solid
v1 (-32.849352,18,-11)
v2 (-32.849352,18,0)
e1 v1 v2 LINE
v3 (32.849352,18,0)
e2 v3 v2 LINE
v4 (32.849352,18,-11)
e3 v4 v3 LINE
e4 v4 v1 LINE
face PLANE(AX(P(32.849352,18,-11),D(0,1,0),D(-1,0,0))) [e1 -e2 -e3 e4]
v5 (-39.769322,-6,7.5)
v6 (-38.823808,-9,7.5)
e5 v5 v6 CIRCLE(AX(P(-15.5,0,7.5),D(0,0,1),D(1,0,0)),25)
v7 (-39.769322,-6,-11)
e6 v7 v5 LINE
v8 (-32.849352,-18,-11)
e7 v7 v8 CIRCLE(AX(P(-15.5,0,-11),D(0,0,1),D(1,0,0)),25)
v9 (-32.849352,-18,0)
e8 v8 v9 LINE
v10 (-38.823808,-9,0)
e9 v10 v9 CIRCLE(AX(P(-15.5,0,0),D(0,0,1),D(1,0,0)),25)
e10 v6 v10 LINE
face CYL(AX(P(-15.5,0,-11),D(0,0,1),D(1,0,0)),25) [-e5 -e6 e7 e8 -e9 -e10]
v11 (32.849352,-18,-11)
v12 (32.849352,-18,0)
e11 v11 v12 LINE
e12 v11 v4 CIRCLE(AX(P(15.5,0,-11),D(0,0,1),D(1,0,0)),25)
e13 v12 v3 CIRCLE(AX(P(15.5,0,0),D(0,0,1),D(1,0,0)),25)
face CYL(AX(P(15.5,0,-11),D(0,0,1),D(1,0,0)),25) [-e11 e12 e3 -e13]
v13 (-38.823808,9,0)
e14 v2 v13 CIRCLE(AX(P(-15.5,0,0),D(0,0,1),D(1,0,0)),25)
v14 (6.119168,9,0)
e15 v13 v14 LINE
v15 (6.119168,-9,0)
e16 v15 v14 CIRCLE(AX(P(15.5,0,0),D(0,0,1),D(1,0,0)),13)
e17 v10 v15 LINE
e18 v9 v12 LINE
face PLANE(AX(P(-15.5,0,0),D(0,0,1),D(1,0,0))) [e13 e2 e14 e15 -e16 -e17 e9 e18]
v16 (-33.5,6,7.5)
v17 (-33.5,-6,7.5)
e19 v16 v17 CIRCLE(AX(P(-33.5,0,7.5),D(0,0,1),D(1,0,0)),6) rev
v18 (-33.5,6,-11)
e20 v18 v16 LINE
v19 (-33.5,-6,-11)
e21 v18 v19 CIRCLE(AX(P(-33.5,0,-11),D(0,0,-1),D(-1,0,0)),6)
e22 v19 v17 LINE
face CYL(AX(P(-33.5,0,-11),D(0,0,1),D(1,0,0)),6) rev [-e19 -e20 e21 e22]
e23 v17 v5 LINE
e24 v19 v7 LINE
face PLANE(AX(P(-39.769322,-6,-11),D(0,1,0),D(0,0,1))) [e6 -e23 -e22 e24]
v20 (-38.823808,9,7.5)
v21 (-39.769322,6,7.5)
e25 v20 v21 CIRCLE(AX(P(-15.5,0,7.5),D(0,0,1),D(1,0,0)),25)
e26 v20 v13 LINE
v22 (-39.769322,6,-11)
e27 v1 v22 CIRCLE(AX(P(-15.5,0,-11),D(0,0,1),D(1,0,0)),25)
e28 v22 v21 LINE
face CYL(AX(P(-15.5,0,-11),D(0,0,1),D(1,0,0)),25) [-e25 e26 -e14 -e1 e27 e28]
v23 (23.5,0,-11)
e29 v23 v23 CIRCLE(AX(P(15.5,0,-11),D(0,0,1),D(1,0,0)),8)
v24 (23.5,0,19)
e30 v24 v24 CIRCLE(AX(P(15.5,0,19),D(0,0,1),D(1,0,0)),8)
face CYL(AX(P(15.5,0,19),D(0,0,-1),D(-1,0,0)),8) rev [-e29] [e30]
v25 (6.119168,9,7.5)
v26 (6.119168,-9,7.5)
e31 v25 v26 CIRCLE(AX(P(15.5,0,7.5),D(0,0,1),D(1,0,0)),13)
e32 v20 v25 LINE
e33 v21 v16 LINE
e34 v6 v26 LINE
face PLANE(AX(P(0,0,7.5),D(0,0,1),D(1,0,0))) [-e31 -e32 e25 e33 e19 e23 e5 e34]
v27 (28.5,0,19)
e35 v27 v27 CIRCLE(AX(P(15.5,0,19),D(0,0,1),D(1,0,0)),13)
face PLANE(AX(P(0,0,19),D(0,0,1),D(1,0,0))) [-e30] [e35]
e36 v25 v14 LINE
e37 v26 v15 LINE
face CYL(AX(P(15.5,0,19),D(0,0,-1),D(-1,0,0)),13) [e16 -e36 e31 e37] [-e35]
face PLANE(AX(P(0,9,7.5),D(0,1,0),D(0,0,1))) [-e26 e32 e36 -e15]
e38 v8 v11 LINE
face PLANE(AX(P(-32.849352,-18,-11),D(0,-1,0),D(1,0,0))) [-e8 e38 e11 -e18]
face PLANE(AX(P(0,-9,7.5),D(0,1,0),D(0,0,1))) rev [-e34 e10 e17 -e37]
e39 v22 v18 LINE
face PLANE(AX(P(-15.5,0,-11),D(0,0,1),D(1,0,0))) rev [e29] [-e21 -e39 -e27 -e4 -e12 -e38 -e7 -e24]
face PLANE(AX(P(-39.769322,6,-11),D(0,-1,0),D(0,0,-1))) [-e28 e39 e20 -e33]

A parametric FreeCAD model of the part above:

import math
import FreeCAD as App
import Part
import Sketcher

V = App.Vector

doc = App.newDocument("Part")
body = doc.addObject("PartDesign::Body", "Body")

sketch1 = doc.addObject("Sketcher::SketchObject", "Sketch")
body.addObject(sketch1)
sketch1.AttachmentSupport = (doc.XY_Plane, [""])
sketch1.MapMode = "FlatFace"
sketch1.addGeometry(Part.LineSegment(V(-33, -18, 0), V(33, -18, 0)), False)
sketch1.addGeometry(Part.ArcOfCircle(Part.Circle(V(16, 0, 0), V(0, 0, 1), 25), math.radians(-46), math.radians(46)), False)
sketch1.addGeometry(Part.LineSegment(V(33, 18, 0), V(-33, 18, 0)), False)
sketch1.addGeometry(Part.ArcOfCircle(Part.Circle(V(-15, 0, 0), V(0, 0, 1), 25), math.radians(134), math.radians(166)), False)
sketch1.addGeometry(Part.LineSegment(V(-40, 6, 0), V(-34, 6, 0)), False)
sketch1.addGeometry(Part.ArcOfCircle(Part.Circle(V(-34, 0, 0), V(0, 0, 1), 6), math.radians(-90), math.radians(90)), False)
sketch1.addGeometry(Part.LineSegment(V(-34, -6, 0), V(-40, -6, 0)), False)
sketch1.addGeometry(Part.ArcOfCircle(Part.Circle(V(-15, 0, 0), V(0, 0, 1), 25), math.radians(-166), math.radians(-134)), False)
sketch1.addConstraint(Sketcher.Constraint("Coincident", 0, 2, 1, 1))
sketch1.addConstraint(Sketcher.Constraint("Coincident", 1, 2, 2, 1))
sketch1.addConstraint(Sketcher.Constraint("Coincident", 2, 2, 3, 1))
sketch1.addConstraint(Sketcher.Constraint("Coincident", 3, 2, 4, 1))
sketch1.addConstraint(Sketcher.Constraint("Tangent", 4, 2, 5, 2))
sketch1.addConstraint(Sketcher.Constraint("Tangent", 5, 1, 6, 1))
sketch1.addConstraint(Sketcher.Constraint("Coincident", 6, 2, 7, 1))
sketch1.addConstraint(Sketcher.Constraint("Coincident", 7, 2, 0, 1))
sketch1.addConstraint(Sketcher.Constraint("Horizontal", 0))
sketch1.addConstraint(Sketcher.Constraint("Horizontal", 2))
sketch1.addConstraint(Sketcher.Constraint("Horizontal", 4))
sketch1.addConstraint(Sketcher.Constraint("Horizontal", 6))
sketch1.addConstraint(Sketcher.Constraint("Coincident", 7, 3, 3, 3))
sketch1.addConstraint(Sketcher.Constraint("Equal", 1, 3))
sketch1.addConstraint(Sketcher.Constraint("Equal", 3, 7))
sketch1.addConstraint(Sketcher.Constraint("Symmetric", 1, 3, 3, 3, -1, 1))
sketch1.addConstraint(Sketcher.Constraint("Symmetric", 0, 2, 1, 2, -1))
sketch1.addConstraint(Sketcher.Constraint("PointOnObject", 5, 3, -1))
sketch1.addConstraint(Sketcher.Constraint("Radius", 1, 25.0))
sketch1.addConstraint(Sketcher.Constraint("Radius", 5, 6.0))
sketch1.addConstraint(Sketcher.Constraint("DistanceY", 0, 2, -1, 1, 18.0))
sketch1.addConstraint(Sketcher.Constraint("DistanceX", 3, 3, 1, 3, 31.0))
sketch1.addConstraint(Sketcher.Constraint("DistanceX", 5, 3, 3, 3, 18.0))
pad1 = doc.addObject("PartDesign::Pad", "Pad")
body.addObject(pad1)
pad1.Profile = sketch1
pad1.Length = 11
pad1.Reversed = True

sketch2 = doc.addObject("Sketcher::SketchObject", "Sketch001")
body.addObject(sketch2)
sketch2.AttachmentSupport = (doc.XY_Plane, [""])
sketch2.MapMode = "FlatFace"
sketch2.addGeometry(Part.ArcOfCircle(Part.Circle(V(-15.5, 0, 0), V(0, 0, 1), 25), math.radians(-166.11), math.radians(-158.9)), False)
sketch2.addGeometry(Part.LineSegment(V(-38.8, -9, 0), V(6.1, -9, 0)), False)
sketch2.addGeometry(Part.ArcOfCircle(Part.Circle(V(15.5, 0, 0), V(0, 0, 1), 13), math.radians(136), math.radians(224)), False)
sketch2.addGeometry(Part.LineSegment(V(6.1, 9, 0), V(-38.8, 9, 0)), False)
sketch2.addGeometry(Part.ArcOfCircle(Part.Circle(V(-15.5, 0, 0), V(0, 0, 1), 25), math.radians(158.9), math.radians(166.11)), False)
sketch2.addGeometry(Part.LineSegment(V(-39.8, 6, 0), V(-33.5, 6, 0)), False)
sketch2.addGeometry(Part.ArcOfCircle(Part.Circle(V(-33.5, 0, 0), V(0, 0, 1), 6), math.radians(-90), math.radians(90)), False)
sketch2.addGeometry(Part.LineSegment(V(-33.5, -6, 0), V(-39.8, -6, 0)), False)
sketch2.addConstraint(Sketcher.Constraint("Coincident", 0, 2, 1, 1))
sketch2.addConstraint(Sketcher.Constraint("Coincident", 1, 2, 2, 2))
sketch2.addConstraint(Sketcher.Constraint("Coincident", 2, 1, 3, 1))
sketch2.addConstraint(Sketcher.Constraint("Coincident", 3, 2, 4, 1))
sketch2.addConstraint(Sketcher.Constraint("Coincident", 4, 2, 5, 1))
sketch2.addConstraint(Sketcher.Constraint("Tangent", 5, 2, 6, 2))
sketch2.addConstraint(Sketcher.Constraint("Tangent", 6, 1, 7, 1))
sketch2.addConstraint(Sketcher.Constraint("Coincident", 7, 2, 0, 1))
sketch2.addConstraint(Sketcher.Constraint("Horizontal", 1))
sketch2.addConstraint(Sketcher.Constraint("Horizontal", 3))
sketch2.addConstraint(Sketcher.Constraint("Horizontal", 5))
sketch2.addConstraint(Sketcher.Constraint("Horizontal", 7))
sketch2.addConstraint(Sketcher.Constraint("Coincident", 4, 3, 0, 3))
sketch2.addConstraint(Sketcher.Constraint("Equal", 0, 4))
sketch2.addConstraint(Sketcher.Constraint("Symmetric", 0, 3, 2, 3, -1, 1))
sketch2.addConstraint(Sketcher.Constraint("Symmetric", 1, 2, 2, 1, -1))
sketch2.addConstraint(Sketcher.Constraint("PointOnObject", 6, 3, -1))
sketch2.addConstraint(Sketcher.Constraint("Radius", 0, 25.0))
sketch2.addConstraint(Sketcher.Constraint("Radius", 2, 13.0))
sketch2.addConstraint(Sketcher.Constraint("Radius", 6, 6.0))
sketch2.addConstraint(Sketcher.Constraint("DistanceY", 0, 2, -1, 1, 9.0))
sketch2.addConstraint(Sketcher.Constraint("DistanceX", 0, 3, 2, 3, 31.0))
sketch2.addConstraint(Sketcher.Constraint("DistanceX", 6, 3, 0, 3, 18.0))
pad2 = doc.addObject("PartDesign::Pad", "Pad001")
body.addObject(pad2)
pad2.Profile = sketch2
pad2.Length = 7.5

sketch3 = doc.addObject("Sketcher::SketchObject", "Sketch002")
body.addObject(sketch3)
sketch3.AttachmentSupport = (doc.XY_Plane, [""])
sketch3.MapMode = "FlatFace"
sketch3.addGeometry(Part.Circle(V(16, 0, 0), V(0, 0, 1), 13), False)
sketch3.addGeometry(Part.Circle(V(16, 0, 0), V(0, 0, 1), 8), False)
sketch3.addConstraint(Sketcher.Constraint("Coincident", 1, 3, 0, 3))
sketch3.addConstraint(Sketcher.Constraint("PointOnObject", 0, 3, -1))
sketch3.addConstraint(Sketcher.Constraint("Diameter", 0, 26.0))
sketch3.addConstraint(Sketcher.Constraint("Diameter", 1, 16.0))
sketch3.addConstraint(Sketcher.Constraint("DistanceX", -1, 1, 0, 3, 15.5))
pad3 = doc.addObject("PartDesign::Pad", "Pad002")
body.addObject(pad3)
pad3.Profile = sketch3
pad3.Length = 19

sketch4 = doc.addObject("Sketcher::SketchObject", "Sketch003")
body.addObject(sketch4)
sketch4.AttachmentSupport = (doc.XY_Plane, [""])
sketch4.MapMode = "FlatFace"
sketch4.addGeometry(Part.Circle(V(16, 0, 0), V(0, 0, 1), 8), False)
sketch4.addConstraint(Sketcher.Constraint("PointOnObject", 0, 3, -1))
sketch4.addConstraint(Sketcher.Constraint("Diameter", 0, 16.0))
sketch4.addConstraint(Sketcher.Constraint("DistanceX", -1, 1, 0, 3, 15.5))
pocket1 = doc.addObject("PartDesign::Pocket", "Pocket")
body.addObject(pocket1)
pocket1.Profile = sketch4
pocket1.Length = 19

doc.recompute()
